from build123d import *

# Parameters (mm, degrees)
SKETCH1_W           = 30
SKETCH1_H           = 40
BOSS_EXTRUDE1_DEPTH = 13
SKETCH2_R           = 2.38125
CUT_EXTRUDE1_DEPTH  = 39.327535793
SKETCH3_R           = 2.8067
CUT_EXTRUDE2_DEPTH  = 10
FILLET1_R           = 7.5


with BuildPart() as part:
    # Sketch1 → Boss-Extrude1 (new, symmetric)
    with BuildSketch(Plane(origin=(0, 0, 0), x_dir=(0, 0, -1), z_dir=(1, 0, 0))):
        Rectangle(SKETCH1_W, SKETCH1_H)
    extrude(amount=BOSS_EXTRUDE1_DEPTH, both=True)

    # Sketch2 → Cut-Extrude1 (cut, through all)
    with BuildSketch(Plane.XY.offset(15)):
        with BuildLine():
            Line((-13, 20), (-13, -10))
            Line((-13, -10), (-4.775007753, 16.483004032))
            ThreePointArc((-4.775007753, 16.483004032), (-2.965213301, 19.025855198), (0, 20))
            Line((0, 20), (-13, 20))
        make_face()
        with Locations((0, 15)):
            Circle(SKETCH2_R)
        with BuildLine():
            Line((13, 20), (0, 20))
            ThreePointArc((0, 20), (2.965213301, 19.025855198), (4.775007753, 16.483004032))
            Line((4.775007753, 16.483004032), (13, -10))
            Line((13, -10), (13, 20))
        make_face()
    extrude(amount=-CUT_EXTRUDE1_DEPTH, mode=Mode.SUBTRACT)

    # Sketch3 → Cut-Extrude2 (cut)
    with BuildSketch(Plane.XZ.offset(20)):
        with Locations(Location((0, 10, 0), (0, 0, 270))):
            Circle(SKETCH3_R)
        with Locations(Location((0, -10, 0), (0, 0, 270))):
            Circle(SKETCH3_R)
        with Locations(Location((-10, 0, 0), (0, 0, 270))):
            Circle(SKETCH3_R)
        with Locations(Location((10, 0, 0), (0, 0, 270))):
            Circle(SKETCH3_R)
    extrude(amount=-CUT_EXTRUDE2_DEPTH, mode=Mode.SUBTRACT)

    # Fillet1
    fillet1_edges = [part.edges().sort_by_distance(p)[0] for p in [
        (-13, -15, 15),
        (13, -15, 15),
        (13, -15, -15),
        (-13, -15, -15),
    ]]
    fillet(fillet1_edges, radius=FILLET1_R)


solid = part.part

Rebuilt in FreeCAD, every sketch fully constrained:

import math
import FreeCAD as App
import Part
import Sketcher

V = App.Vector


def edges_at(feature, points):
    """Names of the edges that pass closest to the given points."""
    edges = feature.Shape.Edges
    near = lambda p: min(range(len(edges)), key=lambda i: edges[i].distToShape(Part.Vertex(*p))[0])
    return sorted({f"Edge{near(p) + 1}" for p in points})

doc = App.newDocument("Part")
params = doc.addObject("Spreadsheet::Sheet", "Params")
for row, (alias, value) in enumerate([
    ("sketch1_width", "40 mm"),
    ("sketch1_height", "30 mm"),
    ("pad1_length", "26 mm"),
    ("sketch2_radius", "5 mm"),
    ("sketch2_width", "13 mm"),
    ("sketch2_height", "30 mm"),
    ("pocket2_length", "10 mm"),
    ("fillet_radius", "7.5 mm"),
], start=1):
    params.set(f"A{row}", alias)
    params.set(f"B{row}", "=" + value)
    params.setAlias(f"B{row}", alias)

body = doc.addObject("PartDesign::Body", "Body")

sketch1 = body.newObject("Sketcher::SketchObject", "Sketch")
sketch1.AttachmentSupport = (doc.getObject("YZ_Plane"), [""])
sketch1.MapMode = "FlatFace"
sketch1.addGeometry([
    Part.LineSegment(V(20, 15, 0), V(-20, 15, 0)),
    Part.LineSegment(V(-20, 15, 0), V(-20, -15, 0)),
    Part.LineSegment(V(-20, -15, 0), V(20, -15, 0)),
    Part.LineSegment(V(20, -15, 0), V(20, 15, 0)),
], False)
sketch1.addConstraint([
    Sketcher.Constraint("Coincident", 0, 2, 1, 1),
    Sketcher.Constraint("Coincident", 1, 2, 2, 1),
    Sketcher.Constraint("Coincident", 2, 2, 3, 1),
    Sketcher.Constraint("Coincident", 3, 2, 0, 1),
    Sketcher.Constraint("Horizontal", 0),
    Sketcher.Constraint("Vertical", 1),
    Sketcher.Constraint("Horizontal", 2),
    Sketcher.Constraint("Vertical", 3),
    Sketcher.Constraint("Symmetric", 0, 2, 2, 2, -1, 1),
    Sketcher.Constraint("DistanceX", 0, 2, 0, 1, 40.0),
    Sketcher.Constraint("DistanceY", 1, 2, 1, 1, 30.0),
])
sketch1.setExpression("Constraints[9]", "Params.sketch1_width")
sketch1.setExpression("Constraints[10]", "Params.sketch1_height")
pad1 = body.newObject("PartDesign::Pad", "Pad")
pad1.Profile = sketch1
pad1.setExpression("Length", "Params.pad1_length")
pad1.Midplane = True

sketch2 = body.newObject("Sketcher::SketchObject", "Sketch001")
sketch2.AttachmentSupport = (doc.getObject("XY_Plane"), [""])
sketch2.MapMode = "FlatFace"
sketch2.AttachmentOffset = App.Placement(V(0, 0, 15), App.Rotation())
sketch2.addGeometry([
    Part.LineSegment(V(-13, 20, 0), V(-13, -10, 0)),
    Part.LineSegment(V(-13, -10, 0), V(-4.8, 16.5, 0)),
    Part.ArcOfCircle(Part.Circle(V(0, 15, 0), V(0, 0, 1), 5), math.radians(90), math.radians(163)),
    Part.LineSegment(V(0, 20, 0), V(-13, 20, 0)),
    Part.Circle(V(0, 15, 0), V(0, 0, 1), 2.4),
    Part.LineSegment(V(13, 20, 0), V(0, 20, 0)),
    Part.ArcOfCircle(Part.Circle(V(0, 15, 0), V(0, 0, 1), 5), math.radians(17), math.radians(90)),
    Part.LineSegment(V(4.8, 16.5, 0), V(13, -10, 0)),
    Part.LineSegment(V(13, -10, 0), V(13, 20, 0)),
], False)
sketch2.addConstraint([
    Sketcher.Constraint("Coincident", 0, 2, 1, 1),
    Sketcher.Constraint("Tangent", 1, 2, 2, 2),
    Sketcher.Constraint("Tangent", 2, 1, 3, 1),
    Sketcher.Constraint("Coincident", 3, 2, 0, 1),
    Sketcher.Constraint("Tangent", 5, 2, 6, 2),
    Sketcher.Constraint("Tangent", 6, 1, 7, 1),
    Sketcher.Constraint("Coincident", 7, 2, 8, 1),
    Sketcher.Constraint("Coincident", 8, 2, 5, 1),
    Sketcher.Constraint("Vertical", 0),
    Sketcher.Constraint("Horizontal", 3),
    Sketcher.Constraint("Horizontal", 5),
    Sketcher.Constraint("Vertical", 8),
    Sketcher.Constraint("Coincident", 4, 3, 2, 3),
    Sketcher.Constraint("Coincident", 6, 3, 2, 3),
    Sketcher.Constraint("Equal", 2, 6),
    Sketcher.Constraint("Symmetric", 1, 2, 6, 1, -2),
    Sketcher.Constraint("Horizontal", 0, 2, 7, 2),
    Sketcher.Constraint("Radius", 2, 5.0),
    Sketcher.Constraint("DistanceX", 3, 2, 3, 1, 13.0),
    Sketcher.Constraint("DistanceY", 0, 2, 0, 1, 30.0),
    Sketcher.Constraint("DistanceY", -1, 1, 2, 3, 15.0),
    Sketcher.Constraint("Diameter", 4, 4.7625),
])
sketch2.setExpression("Constraints[17]", "Params.sketch2_radius")
sketch2.setExpression("Constraints[18]", "Params.sketch2_width")
sketch2.setExpression("Constraints[19]", "Params.sketch2_height")
pocket1 = body.newObject("PartDesign::Pocket", "Pocket")
pocket1.Profile = sketch2
pocket1.Type = "ThroughAll"

sketch3 = body.newObject("Sketcher::SketchObject", "Sketch002")
sketch3.AttachmentSupport = (doc.getObject("XZ_Plane"), [""])
sketch3.MapMode = "FlatFace"
sketch3.AttachmentOffset = App.Placement(V(0, 0, 20), App.Rotation())
sketch3.addGeometry([
    Part.Circle(V(0, 10, 0), V(0, 0, 1), 2.8),
    Part.Circle(V(0, -10, 0), V(0, 0, 1), 2.8),
    Part.Circle(V(-10, 0, 0), V(0, 0, 1), 2.8),
    Part.Circle(V(10, 0, 0), V(0, 0, 1), 2.8),
], False)
sketch3.addConstraint([
    Sketcher.Constraint("Equal", 0, 1),
    Sketcher.Constraint("Equal", 1, 2),
    Sketcher.Constraint("Equal", 2, 3),
    Sketcher.Constraint("Symmetric", 0, 3, 1, 3, -1, 1),
    Sketcher.Constraint("Symmetric", 2, 3, 3, 3, -1, 1),
    Sketcher.Constraint("PointOnObject", 0, 3, -2),
    Sketcher.Constraint("PointOnObject", 2, 3, -1),
    Sketcher.Constraint("DistanceY", -1, 1, 0, 3, 10.0),
    Sketcher.Constraint("DistanceX", 2, 3, -1, 1, 10.0),
    Sketcher.Constraint("Diameter", 0, 5.6134),
])
pocket2 = body.newObject("PartDesign::Pocket", "Pocket001")
pocket2.Profile = sketch3
pocket2.setExpression("Length", "Params.pocket2_length")
doc.recompute()

fillet = body.newObject("PartDesign::Fillet", "Fillet")
fillet.Base = (pocket2, edges_at(pocket2, [
    (-13, -15, 15),
    (13, -15, 15),
    (13, -15, -15),
    (-13, -15, -15),
]))
fillet.setExpression("Radius", "Params.fillet_radius")

doc.recompute()
